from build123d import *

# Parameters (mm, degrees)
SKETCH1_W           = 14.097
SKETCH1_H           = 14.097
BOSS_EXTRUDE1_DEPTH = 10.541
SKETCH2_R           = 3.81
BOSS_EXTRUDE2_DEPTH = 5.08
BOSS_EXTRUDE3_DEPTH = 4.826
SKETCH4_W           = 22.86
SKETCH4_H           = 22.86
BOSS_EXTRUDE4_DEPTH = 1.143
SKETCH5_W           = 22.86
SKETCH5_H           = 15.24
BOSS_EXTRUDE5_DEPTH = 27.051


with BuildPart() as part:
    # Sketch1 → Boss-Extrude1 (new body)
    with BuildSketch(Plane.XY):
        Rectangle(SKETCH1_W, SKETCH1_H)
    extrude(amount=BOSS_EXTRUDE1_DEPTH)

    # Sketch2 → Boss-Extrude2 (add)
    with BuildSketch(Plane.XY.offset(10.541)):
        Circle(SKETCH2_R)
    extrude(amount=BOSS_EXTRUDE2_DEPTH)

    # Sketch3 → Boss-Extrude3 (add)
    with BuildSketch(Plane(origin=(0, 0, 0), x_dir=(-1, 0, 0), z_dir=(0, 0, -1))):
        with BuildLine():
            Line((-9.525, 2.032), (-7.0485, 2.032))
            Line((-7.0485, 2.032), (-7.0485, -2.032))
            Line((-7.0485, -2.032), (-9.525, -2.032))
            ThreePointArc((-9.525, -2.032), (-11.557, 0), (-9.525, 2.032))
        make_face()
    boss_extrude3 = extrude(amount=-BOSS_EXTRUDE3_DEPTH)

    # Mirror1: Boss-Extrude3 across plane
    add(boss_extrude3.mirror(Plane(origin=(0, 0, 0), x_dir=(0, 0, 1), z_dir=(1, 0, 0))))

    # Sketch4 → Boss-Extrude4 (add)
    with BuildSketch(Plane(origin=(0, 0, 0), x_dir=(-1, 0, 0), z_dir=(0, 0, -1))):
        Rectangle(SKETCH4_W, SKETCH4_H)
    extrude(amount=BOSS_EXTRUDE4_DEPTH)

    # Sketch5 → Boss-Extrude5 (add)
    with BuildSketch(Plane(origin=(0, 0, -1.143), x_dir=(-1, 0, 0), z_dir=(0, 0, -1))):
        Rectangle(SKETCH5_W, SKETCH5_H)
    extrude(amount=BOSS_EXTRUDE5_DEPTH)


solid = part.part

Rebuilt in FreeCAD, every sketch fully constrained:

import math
import FreeCAD as App
import Part
import Sketcher
from FreeCAD import Vector
Q = App.Units.Quantity


def add_polygon(sketch, points):
    """Adds a closed chain of lines whose ends are joined by coincident constraints."""
    first, n = sketch.GeometryCount, len(points)
    for a, b in zip(points, points[1:] + points[:1]):
        sketch.addGeometry(Part.LineSegment(App.Vector(*a, 0), App.Vector(*b, 0)), False)
    for i in range(n):
        sketch.addConstraint(Sketcher.Constraint("Coincident", first + i, 2, first + (i + 1) % n, 1))

doc = App.newDocument("Part")
params = doc.addObject("Spreadsheet::Sheet", "Params")
for row, (alias, value) in enumerate([
    ("sketch1_width", "0.555 in"),
    ("pad1_length", "0.415 in"),
    ("sketch2_diameter", "0.3 in"),
    ("pad2_length", "0.2 in"),
    ("sketch3_radius", "0.08 in"),
    ("pad3_length", "0.19 in"),
    ("sketch4_width", "0.9 in"),
    ("pad4_length", "0.045 in"),
    ("sketch5_width", "0.9 in"),
    ("sketch5_height", "0.6 in"),
    ("pad5_length", "1.065 in"),
], start=1):
    params.set(f"A{row}", alias)
    params.set(f"B{row}", "=" + value)
    params.setAlias(f"B{row}", alias)

body = doc.addObject("PartDesign::Body", "Body")

sketch1 = doc.addObject("Sketcher::SketchObject", "Sketch")
body.addObject(sketch1)
sketch1.AttachmentSupport = (doc.XY_Plane, [""])
sketch1.MapMode = "FlatFace"
add_polygon(sketch1, [(-7, 7), (-7, -7), (7, -7), (7, 7)])
sketch1.addConstraint([
    Sketcher.Constraint("Vertical", 0),
    Sketcher.Constraint("Horizontal", 1),
    Sketcher.Constraint("Vertical", 2),
    Sketcher.Constraint("Horizontal", 3),
    Sketcher.Constraint("Symmetric", 0, 2, 2, 2, -1, 1),
    Sketcher.Constraint("Equal", 3, 0),
    Sketcher.Constraint("DistanceX", 1, 1, 1, 2, Q("0.555 in")),
])
sketch1.setExpression("Constraints[10]", "Params.sketch1_width")
pad1 = doc.addObject("PartDesign::Pad", "Pad")
body.addObject(pad1)
pad1.Profile = sketch1
pad1.setExpression("Length", "Params.pad1_length")

sketch2 = doc.addObject("Sketcher::SketchObject", "Sketch001")
body.addObject(sketch2)
sketch2.AttachmentSupport = (doc.XY_Plane, [""])
sketch2.MapMode = "FlatFace"
sketch2.AttachmentOffset = App.Placement(Vector(0, 0, 0.415 * 25.4), App.Rotation())
sketch2.addGeometry(Part.Circle(Vector(0, 0, 0), Vector(0, 0, 1), 3.8), False)
sketch2.addConstraint([
    Sketcher.Constraint("Coincident", 0, 3, -1, 1),
    Sketcher.Constraint("Diameter", 0, Q("0.3 in")),
])
sketch2.setExpression("Constraints[1]", "Params.sketch2_diameter")
pad2 = doc.addObject("PartDesign::Pad", "Pad001")
body.addObject(pad2)
pad2.Profile = sketch2
pad2.setExpression("Length", "Params.pad2_length")

sketch3 = doc.addObject("Sketcher::SketchObject", "Sketch002")
body.addObject(sketch3)
sketch3.AttachmentSupport = (doc.XY_Plane, [""])
sketch3.MapMode = "FlatFace"
sketch3.addGeometry([
    Part.LineSegment(Vector(7, 2, 0), Vector(9.5, 2, 0)),
    Part.ArcOfCircle(Part.Circle(Vector(9.5, 0, 0), Vector(0, 0, 1), 2), math.radians(-90), math.radians(90)),
    Part.LineSegment(Vector(9.5, -2, 0), Vector(7, -2, 0)),
    Part.LineSegment(Vector(7, -2, 0), Vector(7, 2, 0)),
], False)
sketch3.addConstraint([
    Sketcher.Constraint("Tangent", 0, 2, 1, 2),
    Sketcher.Constraint("Tangent", 1, 1, 2, 1),
    Sketcher.Constraint("Coincident", 2, 2, 3, 1),
    Sketcher.Constraint("Coincident", 3, 2, 0, 1),
    Sketcher.Constraint("Horizontal", 0),
    Sketcher.Constraint("Horizontal", 2),
    Sketcher.Constraint("Vertical", 3),
    Sketcher.Constraint("PointOnObject", 1, 3, -1),
    Sketcher.Constraint("Radius", 1, Q("0.08 in")),
    Sketcher.Constraint("DistanceX", 0, 1, 0, 2, Q("0.0975 in")),
    Sketcher.Constraint("DistanceX", -1, 1, 1, 3, Q("0.375 in")),
])
sketch3.setExpression("Constraints[8]", "Params.sketch3_radius")
pad3 = doc.addObject("PartDesign::Pad", "Pad002")
body.addObject(pad3)
pad3.Profile = sketch3
pad3.setExpression("Length", "Params.pad3_length")
doc.recompute()

mirrored = doc.addObject("PartDesign::Mirrored", "Mirrored")
body.addObject(mirrored)
mirrored.Originals = [pad3]
mirrored.MirrorPlane = (doc.YZ_Plane, [""])
body.Tip = mirrored

sketch4 = doc.addObject("Sketcher::SketchObject", "Sketch003")
body.addObject(sketch4)
sketch4.AttachmentSupport = (doc.XY_Plane, [""])
sketch4.MapMode = "FlatFace"
add_polygon(sketch4, [(11, 11), (11, -11), (-11, -11), (-11, 11)])
sketch4.addConstraint([
    Sketcher.Constraint("Vertical", 0),
    Sketcher.Constraint("Horizontal", 1),
    Sketcher.Constraint("Vertical", 2),
    Sketcher.Constraint("Horizontal", 3),
    Sketcher.Constraint("Symmetric", 0, 2, 2, 2, -1, 1),
    Sketcher.Constraint("Equal", 3, 0),
    Sketcher.Constraint("DistanceX", 1, 2, 1, 1, Q("0.9 in")),
])
sketch4.setExpression("Constraints[10]", "Params.sketch4_width")
pad4 = doc.addObject("PartDesign::Pad", "Pad003")
body.addObject(pad4)
pad4.Profile = sketch4
pad4.setExpression("Length", "Params.pad4_length")
pad4.Reversed = True

sketch5 = doc.addObject("Sketcher::SketchObject", "Sketch004")
body.addObject(sketch5)
sketch5.AttachmentSupport = (doc.XY_Plane, [""])
sketch5.MapMode = "FlatFace"
sketch5.AttachmentOffset = App.Placement(Vector(0, 0, -0.045 * 25.4), App.Rotation())
add_polygon(sketch5, [(11, 8), (11, -8), (-11, -8), (-11, 8)])
sketch5.addConstraint([
    Sketcher.Constraint("Vertical", 0),
    Sketcher.Constraint("Horizontal", 1),
    Sketcher.Constraint("Vertical", 2),
    Sketcher.Constraint("Horizontal", 3),
    Sketcher.Constraint("Symmetric", 0, 2, 2, 2, -1, 1),
    Sketcher.Constraint("DistanceX", 1, 2, 1, 1, Q("0.9 in")),
    Sketcher.Constraint("DistanceY", 0, 2, 0, 1, Q("0.6 in")),
])
sketch5.setExpression("Constraints[9]", "Params.sketch5_width")
sketch5.setExpression("Constraints[10]", "Params.sketch5_height")
pad5 = doc.addObject("PartDesign::Pad", "Pad004")
body.addObject(pad5)
pad5.Profile = sketch5
pad5.setExpression("Length", "Params.pad5_length")
pad5.Reversed = True

doc.recompute()
